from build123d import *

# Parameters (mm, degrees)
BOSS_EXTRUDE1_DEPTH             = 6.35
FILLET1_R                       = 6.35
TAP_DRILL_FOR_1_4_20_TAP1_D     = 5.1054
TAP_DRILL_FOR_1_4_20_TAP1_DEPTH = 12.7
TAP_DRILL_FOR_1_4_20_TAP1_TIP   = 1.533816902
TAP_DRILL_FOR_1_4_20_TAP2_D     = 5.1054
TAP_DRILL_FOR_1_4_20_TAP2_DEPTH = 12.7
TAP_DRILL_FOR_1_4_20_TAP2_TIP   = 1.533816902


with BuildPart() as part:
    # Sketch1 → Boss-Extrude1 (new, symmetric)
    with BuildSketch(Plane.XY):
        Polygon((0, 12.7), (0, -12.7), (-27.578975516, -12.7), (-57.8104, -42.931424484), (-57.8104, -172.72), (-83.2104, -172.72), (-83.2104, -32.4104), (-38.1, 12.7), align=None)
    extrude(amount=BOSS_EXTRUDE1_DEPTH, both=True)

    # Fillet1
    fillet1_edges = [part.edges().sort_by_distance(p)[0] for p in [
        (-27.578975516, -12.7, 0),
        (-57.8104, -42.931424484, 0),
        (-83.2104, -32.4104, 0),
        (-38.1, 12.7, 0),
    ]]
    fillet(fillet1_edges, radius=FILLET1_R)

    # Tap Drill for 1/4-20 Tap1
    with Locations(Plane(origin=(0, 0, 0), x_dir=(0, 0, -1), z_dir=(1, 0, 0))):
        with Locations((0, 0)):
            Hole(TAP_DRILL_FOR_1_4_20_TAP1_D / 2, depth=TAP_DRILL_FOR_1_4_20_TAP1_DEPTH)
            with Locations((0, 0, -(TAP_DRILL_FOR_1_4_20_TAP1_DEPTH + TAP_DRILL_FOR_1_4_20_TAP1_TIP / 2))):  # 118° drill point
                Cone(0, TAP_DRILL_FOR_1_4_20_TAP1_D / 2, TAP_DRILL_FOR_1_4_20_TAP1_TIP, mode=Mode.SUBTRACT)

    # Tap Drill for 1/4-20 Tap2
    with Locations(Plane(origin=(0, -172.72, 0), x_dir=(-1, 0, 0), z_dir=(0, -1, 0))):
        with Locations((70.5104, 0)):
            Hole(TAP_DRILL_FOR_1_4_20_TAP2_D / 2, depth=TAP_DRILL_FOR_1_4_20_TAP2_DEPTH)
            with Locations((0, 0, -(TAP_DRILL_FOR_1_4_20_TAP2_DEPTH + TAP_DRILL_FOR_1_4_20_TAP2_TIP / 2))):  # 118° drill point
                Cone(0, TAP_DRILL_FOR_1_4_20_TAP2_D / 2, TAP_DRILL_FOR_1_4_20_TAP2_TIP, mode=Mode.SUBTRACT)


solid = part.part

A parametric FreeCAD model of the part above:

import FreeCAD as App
import Part
import Sketcher
from FreeCAD import Vector
Q = App.Units.Quantity


def edges_at(feature, points):
    """Names of the edges that pass closest to the given points."""
    edges = feature.Shape.Edges
    near = lambda p: min(range(len(edges)), key=lambda i: edges[i].distToShape(Part.Vertex(*p))[0])
    return sorted({f"Edge{near(p) + 1}" for p in points})

doc = App.newDocument("Part")
params = doc.addObject("Spreadsheet::Sheet", "Params")
for row, (alias, value) in enumerate([
    ("sketch1_width", "1 in"),
    ("sketch1_width2", "1.5 in"),
    ("sketch1_height", "5.524 in"),
    ("pad1_length", "0.5 in"),
    ("fillet_radius", "0.25 in"),
    ("sketch2_diameter", "0.201 in"),
    ("hole_diameter", "0.201 in"),
    ("hole_depth", "0.5 in"),
    ("sketch3_diameter", "0.201 in"),
    ("hole2_diameter", "0.201 in"),
    ("hole2_depth", "0.5 in"),
], start=1):
    params.set(f"A{row}", alias)
    params.set(f"B{row}", "=" + value)
    params.setAlias(f"B{row}", alias)

body = doc.addObject("PartDesign::Body", "Body")

# Sketch on XY plane
sketch1 = body.newObject("Sketcher::SketchObject", "Sketch")
sketch1.AttachmentSupport = (doc.getObject("XY_Plane"), [""])
sketch1.MapMode = "FlatFace"
sketch1.addGeometry([
    Part.LineSegment(Vector(0, -13, 0), Vector(0, 13, 0)),  # 0
    Part.LineSegment(Vector(0, 13, 0), Vector(-38, 13, 0)),  # 1
    Part.LineSegment(Vector(-38, 13, 0), Vector(-83, -32, 0)),  # 2
    Part.LineSegment(Vector(-83, -32, 0), Vector(-83, -173, 0)),  # 3
    Part.LineSegment(Vector(-83, -173, 0), Vector(-58, -173, 0)),  # 4
    Part.LineSegment(Vector(-58, -173, 0), Vector(-58, -43, 0)),  # 5
    Part.LineSegment(Vector(-58, -43, 0), Vector(-28, -13, 0)),  # 6
    Part.LineSegment(Vector(-28, -13, 0), Vector(0, -13, 0)),  # 7
], False)
sketch1.addConstraint([
    Sketcher.Constraint("Coincident", 0, 2, 1, 1),
    Sketcher.Constraint("Coincident", 1, 2, 2, 1),
    Sketcher.Constraint("Coincident", 2, 2, 3, 1),
    Sketcher.Constraint("Coincident", 3, 2, 4, 1),
    Sketcher.Constraint("Coincident", 4, 2, 5, 1),
    Sketcher.Constraint("Coincident", 5, 2, 6, 1),
    Sketcher.Constraint("Coincident", 6, 2, 7, 1),
    Sketcher.Constraint("Coincident", 7, 2, 0, 1),
    Sketcher.Constraint("Vertical", 0),
    Sketcher.Constraint("Horizontal", 1),
    Sketcher.Constraint("Vertical", 3),
    Sketcher.Constraint("Horizontal", 4),
    Sketcher.Constraint("Vertical", 5),
    Sketcher.Constraint("Horizontal", 7),
    Sketcher.Constraint("Symmetric", 0, 2, 7, 2, -1, 1),
    Sketcher.Constraint("Parallel", 2, 6),
    Sketcher.Constraint("Equal", 4, 0),
    Sketcher.Constraint("DistanceX", 4, 1, 4, 2, Q("1 in")),
    Sketcher.Constraint("DistanceX", 1, 2, 1, 1, Q("1.5 in")),
    Sketcher.Constraint("Angle", 2, Q("-135 deg")),
    Sketcher.Constraint("DistanceY", 3, 2, -1, 1, Q("6.8 in")),
    Sketcher.Constraint("DistanceY", 3, 2, 3, 1, Q("5.524 in")),
    Sketcher.Constraint("Distance", 6, 42.753691),
])
sketch1.setExpression("Constraints[17]", "Params.sketch1_width")
sketch1.setExpression("Constraints[18]", "Params.sketch1_width2")
sketch1.setExpression("Constraints[21]", "Params.sketch1_height")
pad1 = body.newObject("PartDesign::Pad", "Pad")
pad1.Profile = sketch1
pad1.setExpression("Length", "Params.pad1_length")
pad1.Midplane = True
doc.recompute()

fillet = body.newObject("PartDesign::Fillet", "Fillet")
fillet.Base = (pad1, edges_at(pad1, [
    (-27.579, -12.7, 0),
    (-57.81, -42.931, 0),
    (-83.21, -32.41, 0),
    (-38.1, 12.7, 0),
]))
fillet.setExpression("Radius", "Params.fillet_radius")

# Sketch on YZ plane
sketch2 = body.newObject("Sketcher::SketchObject", "Sketch001")
sketch2.AttachmentSupport = (doc.getObject("YZ_Plane"), [""])
sketch2.MapMode = "FlatFace"
sketch2.addGeometry(Part.Circle(Vector(0, 0, 0), Vector(0, 0, 1), 2.6), False)
sketch2.addConstraint([
    Sketcher.Constraint("Coincident", 0, 3, -1, 1),
    Sketcher.Constraint("Diameter", 0, Q("0.201 in")),
])
sketch2.setExpression("Constraints[1]", "Params.sketch2_diameter")
doc.recompute()
hole = body.newObject("PartDesign::Hole", "Hole")
hole.Profile = sketch2
hole.ThreadType = "None"
hole.setExpression("Diameter", "Params.hole_diameter")
hole.DepthType = "Dimension"
hole.setExpression("Depth", "Params.hole_depth")
hole.DrillPoint = "Angled"
hole.DrillPointAngle = 118

# Sketch on XZ plane
sketch3 = body.newObject("Sketcher::SketchObject", "Sketch002")
sketch3.AttachmentSupport = (doc.getObject("XZ_Plane"), [""])
sketch3.MapMode = "FlatFace"
sketch3.AttachmentOffset = App.Placement(Vector(0, 0, 6.8 * 25.4), App.Rotation())
sketch3.addGeometry(Part.Circle(Vector(-70.5, 0, 0), Vector(0, 0, 1), 2.6), False)
sketch3.addConstraint([
    Sketcher.Constraint("PointOnObject", 0, 3, -1),
    Sketcher.Constraint("Diameter", 0, Q("0.201 in")),
    Sketcher.Constraint("DistanceX", 0, 3, -1, 1, Q("2.776 in")),
])
sketch3.setExpression("Constraints[1]", "Params.sketch3_diameter")
doc.recompute()
hole2 = body.newObject("PartDesign::Hole", "Hole001")
hole2.Profile = sketch3
hole2.ThreadType = "None"
hole2.setExpression("Diameter", "Params.hole2_diameter")
hole2.DepthType = "Dimension"
hole2.setExpression("Depth", "Params.hole2_depth")
hole2.DrillPoint = "Angled"
hole2.DrillPointAngle = 118

doc.recompute()
